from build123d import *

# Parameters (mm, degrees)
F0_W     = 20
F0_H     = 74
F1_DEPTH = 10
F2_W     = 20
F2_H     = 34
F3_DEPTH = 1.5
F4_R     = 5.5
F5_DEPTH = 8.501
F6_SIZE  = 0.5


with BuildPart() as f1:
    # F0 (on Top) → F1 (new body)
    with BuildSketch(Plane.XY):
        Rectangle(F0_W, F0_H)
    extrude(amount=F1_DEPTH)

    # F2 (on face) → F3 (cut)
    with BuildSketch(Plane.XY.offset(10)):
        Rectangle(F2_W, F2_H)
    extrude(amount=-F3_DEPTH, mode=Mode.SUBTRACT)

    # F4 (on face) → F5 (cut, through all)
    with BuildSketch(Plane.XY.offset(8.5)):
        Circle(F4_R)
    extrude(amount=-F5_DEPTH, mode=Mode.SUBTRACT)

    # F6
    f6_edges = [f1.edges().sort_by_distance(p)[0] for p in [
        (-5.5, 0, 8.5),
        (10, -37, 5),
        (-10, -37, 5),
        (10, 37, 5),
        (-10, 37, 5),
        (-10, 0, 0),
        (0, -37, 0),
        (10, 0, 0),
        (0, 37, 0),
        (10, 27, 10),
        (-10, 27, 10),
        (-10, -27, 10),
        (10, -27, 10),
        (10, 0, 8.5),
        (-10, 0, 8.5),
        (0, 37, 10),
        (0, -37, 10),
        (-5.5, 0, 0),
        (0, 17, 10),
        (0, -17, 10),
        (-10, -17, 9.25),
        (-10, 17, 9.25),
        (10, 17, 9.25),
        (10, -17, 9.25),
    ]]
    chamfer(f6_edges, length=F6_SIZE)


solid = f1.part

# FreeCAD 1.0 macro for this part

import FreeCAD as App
import Part
import Sketcher
from FreeCAD import Vector


def edges_at(feature, points):
    """Names of the edges that pass closest to the given points."""
    edges = feature.Shape.Edges
    near = lambda p: min(range(len(edges)), key=lambda i: edges[i].distToShape(Part.Vertex(*p))[0])
    return sorted({f"Edge{near(p) + 1}" for p in points})


def add_polygon(sketch, points):
    """Adds a closed chain of lines whose ends are joined by coincident constraints."""
    first, n = sketch.GeometryCount, len(points)
    for a, b in zip(points, points[1:] + points[:1]):
        sketch.addGeometry(Part.LineSegment(App.Vector(*a, 0), App.Vector(*b, 0)), False)
    for i in range(n):
        sketch.addConstraint(Sketcher.Constraint("Coincident", first + i, 2, first + (i + 1) % n, 1))

doc = App.newDocument("Part")
body = doc.addObject("PartDesign::Body", "Body")

sketch1 = body.newObject("Sketcher::SketchObject", "Sketch")
sketch1.AttachmentSupport = (doc.getObject("XY_Plane"), [""])
sketch1.MapMode = "FlatFace"
add_polygon(sketch1, [(-10, 37), (-10, -37), (10, -37), (10, 37)])
sketch1.addConstraint([
    Sketcher.Constraint("Vertical", 0),
    Sketcher.Constraint("Horizontal", 1),
    Sketcher.Constraint("Vertical", 2),
    Sketcher.Constraint("Horizontal", 3),
    Sketcher.Constraint("Symmetric", 0, 2, 2, 2, -1, 1),
    Sketcher.Constraint("DistanceX", 1, 1, 1, 2, 20.0),
    Sketcher.Constraint("DistanceY", 0, 2, 0, 1, 74.0),
])
pad1 = body.newObject("PartDesign::Pad", "Pad")
pad1.Profile = sketch1
pad1.Length = 10

sketch2 = body.newObject("Sketcher::SketchObject", "Sketch001")
sketch2.AttachmentSupport = (doc.getObject("XY_Plane"), [""])
sketch2.MapMode = "FlatFace"
sketch2.AttachmentOffset = App.Placement(Vector(0, 0, 10), App.Rotation())
add_polygon(sketch2, [(-10, 17), (-10, -17), (10, -17), (10, 17)])
sketch2.addConstraint([
    Sketcher.Constraint("Vertical", 0),
    Sketcher.Constraint("Horizontal", 1),
    Sketcher.Constraint("Vertical", 2),
    Sketcher.Constraint("Horizontal", 3),
    Sketcher.Constraint("Symmetric", 0, 2, 2, 2, -1, 1),
    Sketcher.Constraint("DistanceX", 1, 1, 1, 2, 20.0),
    Sketcher.Constraint("DistanceY", 0, 2, 0, 1, 34.0),
])
pocket1 = body.newObject("PartDesign::Pocket", "Pocket")
pocket1.Profile = sketch2
pocket1.Length = 1.5

sketch3 = body.newObject("Sketcher::SketchObject", "Sketch002")
sketch3.AttachmentSupport = (doc.getObject("XY_Plane"), [""])
sketch3.MapMode = "FlatFace"
sketch3.AttachmentOffset = App.Placement(Vector(0, 0, 8.5), App.Rotation())
sketch3.addGeometry(Part.Circle(Vector(0, 0, 0), Vector(0, 0, 1), 6), False)
sketch3.addConstraint([
    Sketcher.Constraint("Coincident", 0, 3, -1, 1),
    Sketcher.Constraint("Diameter", 0, 11.0),
])
pocket2 = body.newObject("PartDesign::Pocket", "Pocket001")
pocket2.Profile = sketch3
pocket2.Type = "ThroughAll"
doc.recompute()

chamfer = body.newObject("PartDesign::Chamfer", "Chamfer")
chamfer.Base = (pocket2, edges_at(pocket2, [
    (-5.5, 0, 8.5),
    (10, -37, 5),
    (-10, -37, 5),
    (10, 37, 5),
    (-10, 37, 5),
    (-10, 0, 0),
    (0, -37, 0),
    (10, 0, 0),
    (0, 37, 0),
    (10, 27, 10),
    (-10, 27, 10),
    (-10, -27, 10),
    (10, -27, 10),
    (10, 0, 8.5),
    (-10, 0, 8.5),
    (0, 37, 10),
    (0, -37, 10),
    (-5.5, 0, 0),
    (0, 17, 10),
    (0, -17, 10),
    (-10, -17, 9.25),
    (-10, 17, 9.25),
    (10, 17, 9.25),
    (10, -17, 9.25),
]))
chamfer.Size = 0.5

doc.recompute()
